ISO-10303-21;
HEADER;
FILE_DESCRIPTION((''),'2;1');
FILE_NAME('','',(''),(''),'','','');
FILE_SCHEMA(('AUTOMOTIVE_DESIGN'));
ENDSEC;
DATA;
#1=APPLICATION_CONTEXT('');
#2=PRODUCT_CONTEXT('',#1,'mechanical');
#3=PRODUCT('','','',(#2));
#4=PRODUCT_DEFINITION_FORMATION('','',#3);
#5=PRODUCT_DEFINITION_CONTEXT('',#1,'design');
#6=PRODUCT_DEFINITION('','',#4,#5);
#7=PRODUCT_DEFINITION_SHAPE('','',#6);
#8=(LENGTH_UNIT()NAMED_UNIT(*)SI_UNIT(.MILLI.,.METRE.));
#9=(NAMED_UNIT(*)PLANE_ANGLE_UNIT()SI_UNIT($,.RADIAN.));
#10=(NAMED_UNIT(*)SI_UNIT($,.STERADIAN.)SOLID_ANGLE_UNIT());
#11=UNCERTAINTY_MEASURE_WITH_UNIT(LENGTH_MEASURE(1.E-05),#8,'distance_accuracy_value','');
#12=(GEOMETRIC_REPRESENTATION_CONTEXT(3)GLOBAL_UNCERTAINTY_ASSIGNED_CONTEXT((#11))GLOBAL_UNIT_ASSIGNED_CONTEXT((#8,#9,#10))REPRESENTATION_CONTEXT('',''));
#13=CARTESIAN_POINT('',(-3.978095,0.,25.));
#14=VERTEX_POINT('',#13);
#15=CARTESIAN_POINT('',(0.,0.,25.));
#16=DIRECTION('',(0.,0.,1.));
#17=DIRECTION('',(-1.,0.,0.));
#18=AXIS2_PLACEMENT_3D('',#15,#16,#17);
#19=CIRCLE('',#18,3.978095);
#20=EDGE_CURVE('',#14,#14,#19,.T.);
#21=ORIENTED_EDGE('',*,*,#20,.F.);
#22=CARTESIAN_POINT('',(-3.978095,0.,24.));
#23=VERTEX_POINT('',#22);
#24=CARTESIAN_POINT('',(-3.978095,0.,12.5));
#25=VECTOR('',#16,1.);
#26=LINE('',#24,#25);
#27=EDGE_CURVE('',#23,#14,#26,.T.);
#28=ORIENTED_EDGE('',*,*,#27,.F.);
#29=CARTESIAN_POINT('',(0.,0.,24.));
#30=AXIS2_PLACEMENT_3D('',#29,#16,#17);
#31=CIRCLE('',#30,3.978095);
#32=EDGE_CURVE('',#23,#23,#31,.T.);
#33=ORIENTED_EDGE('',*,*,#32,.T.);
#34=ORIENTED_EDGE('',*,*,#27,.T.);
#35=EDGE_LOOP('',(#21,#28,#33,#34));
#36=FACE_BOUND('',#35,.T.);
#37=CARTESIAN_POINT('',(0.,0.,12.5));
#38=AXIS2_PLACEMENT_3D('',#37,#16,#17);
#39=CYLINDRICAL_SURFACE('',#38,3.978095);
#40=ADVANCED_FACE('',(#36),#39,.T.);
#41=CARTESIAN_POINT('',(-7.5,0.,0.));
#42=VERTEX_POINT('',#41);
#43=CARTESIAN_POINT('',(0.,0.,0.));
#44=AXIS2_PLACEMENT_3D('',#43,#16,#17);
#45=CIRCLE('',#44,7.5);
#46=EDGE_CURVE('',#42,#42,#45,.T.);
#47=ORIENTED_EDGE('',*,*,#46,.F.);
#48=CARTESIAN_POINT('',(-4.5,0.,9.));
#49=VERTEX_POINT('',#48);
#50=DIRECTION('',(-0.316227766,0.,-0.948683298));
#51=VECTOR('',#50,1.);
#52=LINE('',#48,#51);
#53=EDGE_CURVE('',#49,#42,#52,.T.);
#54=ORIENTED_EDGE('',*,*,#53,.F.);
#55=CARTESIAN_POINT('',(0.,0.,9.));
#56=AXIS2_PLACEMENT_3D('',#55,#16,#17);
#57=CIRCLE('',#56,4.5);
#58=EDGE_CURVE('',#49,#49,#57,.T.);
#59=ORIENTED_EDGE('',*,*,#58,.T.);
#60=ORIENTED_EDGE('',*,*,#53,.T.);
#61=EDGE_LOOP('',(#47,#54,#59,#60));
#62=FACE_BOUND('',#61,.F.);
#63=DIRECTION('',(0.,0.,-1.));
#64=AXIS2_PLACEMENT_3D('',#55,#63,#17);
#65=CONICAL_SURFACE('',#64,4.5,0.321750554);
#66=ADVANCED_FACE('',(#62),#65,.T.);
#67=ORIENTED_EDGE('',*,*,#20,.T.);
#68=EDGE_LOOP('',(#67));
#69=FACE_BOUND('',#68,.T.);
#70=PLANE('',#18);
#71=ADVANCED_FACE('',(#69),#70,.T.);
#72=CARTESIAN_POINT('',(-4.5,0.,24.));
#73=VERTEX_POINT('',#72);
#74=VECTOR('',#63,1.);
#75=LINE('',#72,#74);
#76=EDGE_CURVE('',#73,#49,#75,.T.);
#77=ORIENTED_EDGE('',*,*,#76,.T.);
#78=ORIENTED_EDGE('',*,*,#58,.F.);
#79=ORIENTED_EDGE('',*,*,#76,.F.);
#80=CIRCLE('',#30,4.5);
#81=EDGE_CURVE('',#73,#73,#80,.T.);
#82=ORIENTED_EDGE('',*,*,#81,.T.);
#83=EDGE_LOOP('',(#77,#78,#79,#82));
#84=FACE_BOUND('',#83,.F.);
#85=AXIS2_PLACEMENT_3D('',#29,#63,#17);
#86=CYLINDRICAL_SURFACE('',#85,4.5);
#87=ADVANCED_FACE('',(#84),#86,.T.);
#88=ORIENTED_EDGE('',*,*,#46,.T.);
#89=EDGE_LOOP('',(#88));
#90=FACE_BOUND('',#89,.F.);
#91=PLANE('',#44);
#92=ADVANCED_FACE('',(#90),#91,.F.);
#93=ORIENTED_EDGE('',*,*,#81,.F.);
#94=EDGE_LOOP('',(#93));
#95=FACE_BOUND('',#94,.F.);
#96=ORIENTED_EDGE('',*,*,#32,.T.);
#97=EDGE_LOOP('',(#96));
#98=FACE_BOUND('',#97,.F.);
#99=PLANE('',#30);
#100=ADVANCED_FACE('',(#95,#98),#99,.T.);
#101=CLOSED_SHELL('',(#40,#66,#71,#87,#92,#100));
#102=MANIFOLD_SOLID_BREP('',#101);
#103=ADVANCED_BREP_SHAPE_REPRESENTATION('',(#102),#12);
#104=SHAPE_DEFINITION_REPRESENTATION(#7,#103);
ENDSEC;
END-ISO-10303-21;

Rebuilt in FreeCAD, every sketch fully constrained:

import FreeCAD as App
import Part
import Sketcher


def add_polygon(sketch, points):
    """Adds a closed chain of lines whose ends are joined by coincident constraints."""
    first, n = sketch.GeometryCount, len(points)
    for a, b in zip(points, points[1:] + points[:1]):
        sketch.addGeometry(Part.LineSegment(App.Vector(*a, 0), App.Vector(*b, 0)), False)
    for i in range(n):
        sketch.addConstraint(Sketcher.Constraint("Coincident", first + i, 2, first + (i + 1) % n, 1))

doc = App.newDocument("Part")
body = doc.addObject("PartDesign::Body", "Body")

sketch1 = doc.addObject("Sketcher::SketchObject", "Sketch")
body.addObject(sketch1)
sketch1.AttachmentSupport = (doc.XZ_Plane, [""])
sketch1.MapMode = "FlatFace"
add_polygon(sketch1, [(-7.5, 0), (0, 0), (0, 24), (-4.5, 24), (-4.5, 9)])
sketch1.addConstraint(Sketcher.Constraint("Horizontal", 0))
sketch1.addConstraint(Sketcher.Constraint("Vertical", 1))
sketch1.addConstraint(Sketcher.Constraint("Horizontal", 2))
sketch1.addConstraint(Sketcher.Constraint("Vertical", 3))
sketch1.addConstraint(Sketcher.Constraint("Coincident", 0, 2, -1, 1))
sketch1.addConstraint(Sketcher.Constraint("DistanceY", 1, 1, 1, 2, 24.0))
sketch1.addConstraint(Sketcher.Constraint("DistanceY", 3, 2, 3, 1, 15.0))
sketch1.addConstraint(Sketcher.Constraint("DistanceX", 0, 1, 0, 2, 7.5))
sketch1.addConstraint(Sketcher.Constraint("DistanceX", 2, 2, 2, 1, 4.5))
revolution = doc.addObject("PartDesign::Revolution", "Revolution")
body.addObject(revolution)
revolution.Profile = sketch1
revolution.ReferenceAxis = (sketch1, ["V_Axis"])
revolution.Angle = 360

sketch2 = doc.addObject("Sketcher::SketchObject", "Sketch001")
body.addObject(sketch2)
sketch2.AttachmentSupport = (doc.XZ_Plane, [""])
sketch2.MapMode = "FlatFace"
add_polygon(sketch2, [(-3.978095, 25), (-3.978095, 0), (0, 0), (0, 25)])
sketch2.addConstraint(Sketcher.Constraint("Vertical", 0))
sketch2.addConstraint(Sketcher.Constraint("Horizontal", 1))
sketch2.addConstraint(Sketcher.Constraint("Vertical", 2))
sketch2.addConstraint(Sketcher.Constraint("Horizontal", 3))
sketch2.addConstraint(Sketcher.Constraint("Coincident", 1, 2, -1, 1))
sketch2.addConstraint(Sketcher.Constraint("DistanceY", 0, 2, 0, 1, 25.0))
sketch2.addConstraint(Sketcher.Constraint("DistanceX", 1, 1, 1, 2, 3.978095))
revolution2 = doc.addObject("PartDesign::Revolution", "Revolution001")
body.addObject(revolution2)
revolution2.Profile = sketch2
revolution2.ReferenceAxis = (sketch2, ["V_Axis"])
revolution2.Angle = 360

doc.recompute()
